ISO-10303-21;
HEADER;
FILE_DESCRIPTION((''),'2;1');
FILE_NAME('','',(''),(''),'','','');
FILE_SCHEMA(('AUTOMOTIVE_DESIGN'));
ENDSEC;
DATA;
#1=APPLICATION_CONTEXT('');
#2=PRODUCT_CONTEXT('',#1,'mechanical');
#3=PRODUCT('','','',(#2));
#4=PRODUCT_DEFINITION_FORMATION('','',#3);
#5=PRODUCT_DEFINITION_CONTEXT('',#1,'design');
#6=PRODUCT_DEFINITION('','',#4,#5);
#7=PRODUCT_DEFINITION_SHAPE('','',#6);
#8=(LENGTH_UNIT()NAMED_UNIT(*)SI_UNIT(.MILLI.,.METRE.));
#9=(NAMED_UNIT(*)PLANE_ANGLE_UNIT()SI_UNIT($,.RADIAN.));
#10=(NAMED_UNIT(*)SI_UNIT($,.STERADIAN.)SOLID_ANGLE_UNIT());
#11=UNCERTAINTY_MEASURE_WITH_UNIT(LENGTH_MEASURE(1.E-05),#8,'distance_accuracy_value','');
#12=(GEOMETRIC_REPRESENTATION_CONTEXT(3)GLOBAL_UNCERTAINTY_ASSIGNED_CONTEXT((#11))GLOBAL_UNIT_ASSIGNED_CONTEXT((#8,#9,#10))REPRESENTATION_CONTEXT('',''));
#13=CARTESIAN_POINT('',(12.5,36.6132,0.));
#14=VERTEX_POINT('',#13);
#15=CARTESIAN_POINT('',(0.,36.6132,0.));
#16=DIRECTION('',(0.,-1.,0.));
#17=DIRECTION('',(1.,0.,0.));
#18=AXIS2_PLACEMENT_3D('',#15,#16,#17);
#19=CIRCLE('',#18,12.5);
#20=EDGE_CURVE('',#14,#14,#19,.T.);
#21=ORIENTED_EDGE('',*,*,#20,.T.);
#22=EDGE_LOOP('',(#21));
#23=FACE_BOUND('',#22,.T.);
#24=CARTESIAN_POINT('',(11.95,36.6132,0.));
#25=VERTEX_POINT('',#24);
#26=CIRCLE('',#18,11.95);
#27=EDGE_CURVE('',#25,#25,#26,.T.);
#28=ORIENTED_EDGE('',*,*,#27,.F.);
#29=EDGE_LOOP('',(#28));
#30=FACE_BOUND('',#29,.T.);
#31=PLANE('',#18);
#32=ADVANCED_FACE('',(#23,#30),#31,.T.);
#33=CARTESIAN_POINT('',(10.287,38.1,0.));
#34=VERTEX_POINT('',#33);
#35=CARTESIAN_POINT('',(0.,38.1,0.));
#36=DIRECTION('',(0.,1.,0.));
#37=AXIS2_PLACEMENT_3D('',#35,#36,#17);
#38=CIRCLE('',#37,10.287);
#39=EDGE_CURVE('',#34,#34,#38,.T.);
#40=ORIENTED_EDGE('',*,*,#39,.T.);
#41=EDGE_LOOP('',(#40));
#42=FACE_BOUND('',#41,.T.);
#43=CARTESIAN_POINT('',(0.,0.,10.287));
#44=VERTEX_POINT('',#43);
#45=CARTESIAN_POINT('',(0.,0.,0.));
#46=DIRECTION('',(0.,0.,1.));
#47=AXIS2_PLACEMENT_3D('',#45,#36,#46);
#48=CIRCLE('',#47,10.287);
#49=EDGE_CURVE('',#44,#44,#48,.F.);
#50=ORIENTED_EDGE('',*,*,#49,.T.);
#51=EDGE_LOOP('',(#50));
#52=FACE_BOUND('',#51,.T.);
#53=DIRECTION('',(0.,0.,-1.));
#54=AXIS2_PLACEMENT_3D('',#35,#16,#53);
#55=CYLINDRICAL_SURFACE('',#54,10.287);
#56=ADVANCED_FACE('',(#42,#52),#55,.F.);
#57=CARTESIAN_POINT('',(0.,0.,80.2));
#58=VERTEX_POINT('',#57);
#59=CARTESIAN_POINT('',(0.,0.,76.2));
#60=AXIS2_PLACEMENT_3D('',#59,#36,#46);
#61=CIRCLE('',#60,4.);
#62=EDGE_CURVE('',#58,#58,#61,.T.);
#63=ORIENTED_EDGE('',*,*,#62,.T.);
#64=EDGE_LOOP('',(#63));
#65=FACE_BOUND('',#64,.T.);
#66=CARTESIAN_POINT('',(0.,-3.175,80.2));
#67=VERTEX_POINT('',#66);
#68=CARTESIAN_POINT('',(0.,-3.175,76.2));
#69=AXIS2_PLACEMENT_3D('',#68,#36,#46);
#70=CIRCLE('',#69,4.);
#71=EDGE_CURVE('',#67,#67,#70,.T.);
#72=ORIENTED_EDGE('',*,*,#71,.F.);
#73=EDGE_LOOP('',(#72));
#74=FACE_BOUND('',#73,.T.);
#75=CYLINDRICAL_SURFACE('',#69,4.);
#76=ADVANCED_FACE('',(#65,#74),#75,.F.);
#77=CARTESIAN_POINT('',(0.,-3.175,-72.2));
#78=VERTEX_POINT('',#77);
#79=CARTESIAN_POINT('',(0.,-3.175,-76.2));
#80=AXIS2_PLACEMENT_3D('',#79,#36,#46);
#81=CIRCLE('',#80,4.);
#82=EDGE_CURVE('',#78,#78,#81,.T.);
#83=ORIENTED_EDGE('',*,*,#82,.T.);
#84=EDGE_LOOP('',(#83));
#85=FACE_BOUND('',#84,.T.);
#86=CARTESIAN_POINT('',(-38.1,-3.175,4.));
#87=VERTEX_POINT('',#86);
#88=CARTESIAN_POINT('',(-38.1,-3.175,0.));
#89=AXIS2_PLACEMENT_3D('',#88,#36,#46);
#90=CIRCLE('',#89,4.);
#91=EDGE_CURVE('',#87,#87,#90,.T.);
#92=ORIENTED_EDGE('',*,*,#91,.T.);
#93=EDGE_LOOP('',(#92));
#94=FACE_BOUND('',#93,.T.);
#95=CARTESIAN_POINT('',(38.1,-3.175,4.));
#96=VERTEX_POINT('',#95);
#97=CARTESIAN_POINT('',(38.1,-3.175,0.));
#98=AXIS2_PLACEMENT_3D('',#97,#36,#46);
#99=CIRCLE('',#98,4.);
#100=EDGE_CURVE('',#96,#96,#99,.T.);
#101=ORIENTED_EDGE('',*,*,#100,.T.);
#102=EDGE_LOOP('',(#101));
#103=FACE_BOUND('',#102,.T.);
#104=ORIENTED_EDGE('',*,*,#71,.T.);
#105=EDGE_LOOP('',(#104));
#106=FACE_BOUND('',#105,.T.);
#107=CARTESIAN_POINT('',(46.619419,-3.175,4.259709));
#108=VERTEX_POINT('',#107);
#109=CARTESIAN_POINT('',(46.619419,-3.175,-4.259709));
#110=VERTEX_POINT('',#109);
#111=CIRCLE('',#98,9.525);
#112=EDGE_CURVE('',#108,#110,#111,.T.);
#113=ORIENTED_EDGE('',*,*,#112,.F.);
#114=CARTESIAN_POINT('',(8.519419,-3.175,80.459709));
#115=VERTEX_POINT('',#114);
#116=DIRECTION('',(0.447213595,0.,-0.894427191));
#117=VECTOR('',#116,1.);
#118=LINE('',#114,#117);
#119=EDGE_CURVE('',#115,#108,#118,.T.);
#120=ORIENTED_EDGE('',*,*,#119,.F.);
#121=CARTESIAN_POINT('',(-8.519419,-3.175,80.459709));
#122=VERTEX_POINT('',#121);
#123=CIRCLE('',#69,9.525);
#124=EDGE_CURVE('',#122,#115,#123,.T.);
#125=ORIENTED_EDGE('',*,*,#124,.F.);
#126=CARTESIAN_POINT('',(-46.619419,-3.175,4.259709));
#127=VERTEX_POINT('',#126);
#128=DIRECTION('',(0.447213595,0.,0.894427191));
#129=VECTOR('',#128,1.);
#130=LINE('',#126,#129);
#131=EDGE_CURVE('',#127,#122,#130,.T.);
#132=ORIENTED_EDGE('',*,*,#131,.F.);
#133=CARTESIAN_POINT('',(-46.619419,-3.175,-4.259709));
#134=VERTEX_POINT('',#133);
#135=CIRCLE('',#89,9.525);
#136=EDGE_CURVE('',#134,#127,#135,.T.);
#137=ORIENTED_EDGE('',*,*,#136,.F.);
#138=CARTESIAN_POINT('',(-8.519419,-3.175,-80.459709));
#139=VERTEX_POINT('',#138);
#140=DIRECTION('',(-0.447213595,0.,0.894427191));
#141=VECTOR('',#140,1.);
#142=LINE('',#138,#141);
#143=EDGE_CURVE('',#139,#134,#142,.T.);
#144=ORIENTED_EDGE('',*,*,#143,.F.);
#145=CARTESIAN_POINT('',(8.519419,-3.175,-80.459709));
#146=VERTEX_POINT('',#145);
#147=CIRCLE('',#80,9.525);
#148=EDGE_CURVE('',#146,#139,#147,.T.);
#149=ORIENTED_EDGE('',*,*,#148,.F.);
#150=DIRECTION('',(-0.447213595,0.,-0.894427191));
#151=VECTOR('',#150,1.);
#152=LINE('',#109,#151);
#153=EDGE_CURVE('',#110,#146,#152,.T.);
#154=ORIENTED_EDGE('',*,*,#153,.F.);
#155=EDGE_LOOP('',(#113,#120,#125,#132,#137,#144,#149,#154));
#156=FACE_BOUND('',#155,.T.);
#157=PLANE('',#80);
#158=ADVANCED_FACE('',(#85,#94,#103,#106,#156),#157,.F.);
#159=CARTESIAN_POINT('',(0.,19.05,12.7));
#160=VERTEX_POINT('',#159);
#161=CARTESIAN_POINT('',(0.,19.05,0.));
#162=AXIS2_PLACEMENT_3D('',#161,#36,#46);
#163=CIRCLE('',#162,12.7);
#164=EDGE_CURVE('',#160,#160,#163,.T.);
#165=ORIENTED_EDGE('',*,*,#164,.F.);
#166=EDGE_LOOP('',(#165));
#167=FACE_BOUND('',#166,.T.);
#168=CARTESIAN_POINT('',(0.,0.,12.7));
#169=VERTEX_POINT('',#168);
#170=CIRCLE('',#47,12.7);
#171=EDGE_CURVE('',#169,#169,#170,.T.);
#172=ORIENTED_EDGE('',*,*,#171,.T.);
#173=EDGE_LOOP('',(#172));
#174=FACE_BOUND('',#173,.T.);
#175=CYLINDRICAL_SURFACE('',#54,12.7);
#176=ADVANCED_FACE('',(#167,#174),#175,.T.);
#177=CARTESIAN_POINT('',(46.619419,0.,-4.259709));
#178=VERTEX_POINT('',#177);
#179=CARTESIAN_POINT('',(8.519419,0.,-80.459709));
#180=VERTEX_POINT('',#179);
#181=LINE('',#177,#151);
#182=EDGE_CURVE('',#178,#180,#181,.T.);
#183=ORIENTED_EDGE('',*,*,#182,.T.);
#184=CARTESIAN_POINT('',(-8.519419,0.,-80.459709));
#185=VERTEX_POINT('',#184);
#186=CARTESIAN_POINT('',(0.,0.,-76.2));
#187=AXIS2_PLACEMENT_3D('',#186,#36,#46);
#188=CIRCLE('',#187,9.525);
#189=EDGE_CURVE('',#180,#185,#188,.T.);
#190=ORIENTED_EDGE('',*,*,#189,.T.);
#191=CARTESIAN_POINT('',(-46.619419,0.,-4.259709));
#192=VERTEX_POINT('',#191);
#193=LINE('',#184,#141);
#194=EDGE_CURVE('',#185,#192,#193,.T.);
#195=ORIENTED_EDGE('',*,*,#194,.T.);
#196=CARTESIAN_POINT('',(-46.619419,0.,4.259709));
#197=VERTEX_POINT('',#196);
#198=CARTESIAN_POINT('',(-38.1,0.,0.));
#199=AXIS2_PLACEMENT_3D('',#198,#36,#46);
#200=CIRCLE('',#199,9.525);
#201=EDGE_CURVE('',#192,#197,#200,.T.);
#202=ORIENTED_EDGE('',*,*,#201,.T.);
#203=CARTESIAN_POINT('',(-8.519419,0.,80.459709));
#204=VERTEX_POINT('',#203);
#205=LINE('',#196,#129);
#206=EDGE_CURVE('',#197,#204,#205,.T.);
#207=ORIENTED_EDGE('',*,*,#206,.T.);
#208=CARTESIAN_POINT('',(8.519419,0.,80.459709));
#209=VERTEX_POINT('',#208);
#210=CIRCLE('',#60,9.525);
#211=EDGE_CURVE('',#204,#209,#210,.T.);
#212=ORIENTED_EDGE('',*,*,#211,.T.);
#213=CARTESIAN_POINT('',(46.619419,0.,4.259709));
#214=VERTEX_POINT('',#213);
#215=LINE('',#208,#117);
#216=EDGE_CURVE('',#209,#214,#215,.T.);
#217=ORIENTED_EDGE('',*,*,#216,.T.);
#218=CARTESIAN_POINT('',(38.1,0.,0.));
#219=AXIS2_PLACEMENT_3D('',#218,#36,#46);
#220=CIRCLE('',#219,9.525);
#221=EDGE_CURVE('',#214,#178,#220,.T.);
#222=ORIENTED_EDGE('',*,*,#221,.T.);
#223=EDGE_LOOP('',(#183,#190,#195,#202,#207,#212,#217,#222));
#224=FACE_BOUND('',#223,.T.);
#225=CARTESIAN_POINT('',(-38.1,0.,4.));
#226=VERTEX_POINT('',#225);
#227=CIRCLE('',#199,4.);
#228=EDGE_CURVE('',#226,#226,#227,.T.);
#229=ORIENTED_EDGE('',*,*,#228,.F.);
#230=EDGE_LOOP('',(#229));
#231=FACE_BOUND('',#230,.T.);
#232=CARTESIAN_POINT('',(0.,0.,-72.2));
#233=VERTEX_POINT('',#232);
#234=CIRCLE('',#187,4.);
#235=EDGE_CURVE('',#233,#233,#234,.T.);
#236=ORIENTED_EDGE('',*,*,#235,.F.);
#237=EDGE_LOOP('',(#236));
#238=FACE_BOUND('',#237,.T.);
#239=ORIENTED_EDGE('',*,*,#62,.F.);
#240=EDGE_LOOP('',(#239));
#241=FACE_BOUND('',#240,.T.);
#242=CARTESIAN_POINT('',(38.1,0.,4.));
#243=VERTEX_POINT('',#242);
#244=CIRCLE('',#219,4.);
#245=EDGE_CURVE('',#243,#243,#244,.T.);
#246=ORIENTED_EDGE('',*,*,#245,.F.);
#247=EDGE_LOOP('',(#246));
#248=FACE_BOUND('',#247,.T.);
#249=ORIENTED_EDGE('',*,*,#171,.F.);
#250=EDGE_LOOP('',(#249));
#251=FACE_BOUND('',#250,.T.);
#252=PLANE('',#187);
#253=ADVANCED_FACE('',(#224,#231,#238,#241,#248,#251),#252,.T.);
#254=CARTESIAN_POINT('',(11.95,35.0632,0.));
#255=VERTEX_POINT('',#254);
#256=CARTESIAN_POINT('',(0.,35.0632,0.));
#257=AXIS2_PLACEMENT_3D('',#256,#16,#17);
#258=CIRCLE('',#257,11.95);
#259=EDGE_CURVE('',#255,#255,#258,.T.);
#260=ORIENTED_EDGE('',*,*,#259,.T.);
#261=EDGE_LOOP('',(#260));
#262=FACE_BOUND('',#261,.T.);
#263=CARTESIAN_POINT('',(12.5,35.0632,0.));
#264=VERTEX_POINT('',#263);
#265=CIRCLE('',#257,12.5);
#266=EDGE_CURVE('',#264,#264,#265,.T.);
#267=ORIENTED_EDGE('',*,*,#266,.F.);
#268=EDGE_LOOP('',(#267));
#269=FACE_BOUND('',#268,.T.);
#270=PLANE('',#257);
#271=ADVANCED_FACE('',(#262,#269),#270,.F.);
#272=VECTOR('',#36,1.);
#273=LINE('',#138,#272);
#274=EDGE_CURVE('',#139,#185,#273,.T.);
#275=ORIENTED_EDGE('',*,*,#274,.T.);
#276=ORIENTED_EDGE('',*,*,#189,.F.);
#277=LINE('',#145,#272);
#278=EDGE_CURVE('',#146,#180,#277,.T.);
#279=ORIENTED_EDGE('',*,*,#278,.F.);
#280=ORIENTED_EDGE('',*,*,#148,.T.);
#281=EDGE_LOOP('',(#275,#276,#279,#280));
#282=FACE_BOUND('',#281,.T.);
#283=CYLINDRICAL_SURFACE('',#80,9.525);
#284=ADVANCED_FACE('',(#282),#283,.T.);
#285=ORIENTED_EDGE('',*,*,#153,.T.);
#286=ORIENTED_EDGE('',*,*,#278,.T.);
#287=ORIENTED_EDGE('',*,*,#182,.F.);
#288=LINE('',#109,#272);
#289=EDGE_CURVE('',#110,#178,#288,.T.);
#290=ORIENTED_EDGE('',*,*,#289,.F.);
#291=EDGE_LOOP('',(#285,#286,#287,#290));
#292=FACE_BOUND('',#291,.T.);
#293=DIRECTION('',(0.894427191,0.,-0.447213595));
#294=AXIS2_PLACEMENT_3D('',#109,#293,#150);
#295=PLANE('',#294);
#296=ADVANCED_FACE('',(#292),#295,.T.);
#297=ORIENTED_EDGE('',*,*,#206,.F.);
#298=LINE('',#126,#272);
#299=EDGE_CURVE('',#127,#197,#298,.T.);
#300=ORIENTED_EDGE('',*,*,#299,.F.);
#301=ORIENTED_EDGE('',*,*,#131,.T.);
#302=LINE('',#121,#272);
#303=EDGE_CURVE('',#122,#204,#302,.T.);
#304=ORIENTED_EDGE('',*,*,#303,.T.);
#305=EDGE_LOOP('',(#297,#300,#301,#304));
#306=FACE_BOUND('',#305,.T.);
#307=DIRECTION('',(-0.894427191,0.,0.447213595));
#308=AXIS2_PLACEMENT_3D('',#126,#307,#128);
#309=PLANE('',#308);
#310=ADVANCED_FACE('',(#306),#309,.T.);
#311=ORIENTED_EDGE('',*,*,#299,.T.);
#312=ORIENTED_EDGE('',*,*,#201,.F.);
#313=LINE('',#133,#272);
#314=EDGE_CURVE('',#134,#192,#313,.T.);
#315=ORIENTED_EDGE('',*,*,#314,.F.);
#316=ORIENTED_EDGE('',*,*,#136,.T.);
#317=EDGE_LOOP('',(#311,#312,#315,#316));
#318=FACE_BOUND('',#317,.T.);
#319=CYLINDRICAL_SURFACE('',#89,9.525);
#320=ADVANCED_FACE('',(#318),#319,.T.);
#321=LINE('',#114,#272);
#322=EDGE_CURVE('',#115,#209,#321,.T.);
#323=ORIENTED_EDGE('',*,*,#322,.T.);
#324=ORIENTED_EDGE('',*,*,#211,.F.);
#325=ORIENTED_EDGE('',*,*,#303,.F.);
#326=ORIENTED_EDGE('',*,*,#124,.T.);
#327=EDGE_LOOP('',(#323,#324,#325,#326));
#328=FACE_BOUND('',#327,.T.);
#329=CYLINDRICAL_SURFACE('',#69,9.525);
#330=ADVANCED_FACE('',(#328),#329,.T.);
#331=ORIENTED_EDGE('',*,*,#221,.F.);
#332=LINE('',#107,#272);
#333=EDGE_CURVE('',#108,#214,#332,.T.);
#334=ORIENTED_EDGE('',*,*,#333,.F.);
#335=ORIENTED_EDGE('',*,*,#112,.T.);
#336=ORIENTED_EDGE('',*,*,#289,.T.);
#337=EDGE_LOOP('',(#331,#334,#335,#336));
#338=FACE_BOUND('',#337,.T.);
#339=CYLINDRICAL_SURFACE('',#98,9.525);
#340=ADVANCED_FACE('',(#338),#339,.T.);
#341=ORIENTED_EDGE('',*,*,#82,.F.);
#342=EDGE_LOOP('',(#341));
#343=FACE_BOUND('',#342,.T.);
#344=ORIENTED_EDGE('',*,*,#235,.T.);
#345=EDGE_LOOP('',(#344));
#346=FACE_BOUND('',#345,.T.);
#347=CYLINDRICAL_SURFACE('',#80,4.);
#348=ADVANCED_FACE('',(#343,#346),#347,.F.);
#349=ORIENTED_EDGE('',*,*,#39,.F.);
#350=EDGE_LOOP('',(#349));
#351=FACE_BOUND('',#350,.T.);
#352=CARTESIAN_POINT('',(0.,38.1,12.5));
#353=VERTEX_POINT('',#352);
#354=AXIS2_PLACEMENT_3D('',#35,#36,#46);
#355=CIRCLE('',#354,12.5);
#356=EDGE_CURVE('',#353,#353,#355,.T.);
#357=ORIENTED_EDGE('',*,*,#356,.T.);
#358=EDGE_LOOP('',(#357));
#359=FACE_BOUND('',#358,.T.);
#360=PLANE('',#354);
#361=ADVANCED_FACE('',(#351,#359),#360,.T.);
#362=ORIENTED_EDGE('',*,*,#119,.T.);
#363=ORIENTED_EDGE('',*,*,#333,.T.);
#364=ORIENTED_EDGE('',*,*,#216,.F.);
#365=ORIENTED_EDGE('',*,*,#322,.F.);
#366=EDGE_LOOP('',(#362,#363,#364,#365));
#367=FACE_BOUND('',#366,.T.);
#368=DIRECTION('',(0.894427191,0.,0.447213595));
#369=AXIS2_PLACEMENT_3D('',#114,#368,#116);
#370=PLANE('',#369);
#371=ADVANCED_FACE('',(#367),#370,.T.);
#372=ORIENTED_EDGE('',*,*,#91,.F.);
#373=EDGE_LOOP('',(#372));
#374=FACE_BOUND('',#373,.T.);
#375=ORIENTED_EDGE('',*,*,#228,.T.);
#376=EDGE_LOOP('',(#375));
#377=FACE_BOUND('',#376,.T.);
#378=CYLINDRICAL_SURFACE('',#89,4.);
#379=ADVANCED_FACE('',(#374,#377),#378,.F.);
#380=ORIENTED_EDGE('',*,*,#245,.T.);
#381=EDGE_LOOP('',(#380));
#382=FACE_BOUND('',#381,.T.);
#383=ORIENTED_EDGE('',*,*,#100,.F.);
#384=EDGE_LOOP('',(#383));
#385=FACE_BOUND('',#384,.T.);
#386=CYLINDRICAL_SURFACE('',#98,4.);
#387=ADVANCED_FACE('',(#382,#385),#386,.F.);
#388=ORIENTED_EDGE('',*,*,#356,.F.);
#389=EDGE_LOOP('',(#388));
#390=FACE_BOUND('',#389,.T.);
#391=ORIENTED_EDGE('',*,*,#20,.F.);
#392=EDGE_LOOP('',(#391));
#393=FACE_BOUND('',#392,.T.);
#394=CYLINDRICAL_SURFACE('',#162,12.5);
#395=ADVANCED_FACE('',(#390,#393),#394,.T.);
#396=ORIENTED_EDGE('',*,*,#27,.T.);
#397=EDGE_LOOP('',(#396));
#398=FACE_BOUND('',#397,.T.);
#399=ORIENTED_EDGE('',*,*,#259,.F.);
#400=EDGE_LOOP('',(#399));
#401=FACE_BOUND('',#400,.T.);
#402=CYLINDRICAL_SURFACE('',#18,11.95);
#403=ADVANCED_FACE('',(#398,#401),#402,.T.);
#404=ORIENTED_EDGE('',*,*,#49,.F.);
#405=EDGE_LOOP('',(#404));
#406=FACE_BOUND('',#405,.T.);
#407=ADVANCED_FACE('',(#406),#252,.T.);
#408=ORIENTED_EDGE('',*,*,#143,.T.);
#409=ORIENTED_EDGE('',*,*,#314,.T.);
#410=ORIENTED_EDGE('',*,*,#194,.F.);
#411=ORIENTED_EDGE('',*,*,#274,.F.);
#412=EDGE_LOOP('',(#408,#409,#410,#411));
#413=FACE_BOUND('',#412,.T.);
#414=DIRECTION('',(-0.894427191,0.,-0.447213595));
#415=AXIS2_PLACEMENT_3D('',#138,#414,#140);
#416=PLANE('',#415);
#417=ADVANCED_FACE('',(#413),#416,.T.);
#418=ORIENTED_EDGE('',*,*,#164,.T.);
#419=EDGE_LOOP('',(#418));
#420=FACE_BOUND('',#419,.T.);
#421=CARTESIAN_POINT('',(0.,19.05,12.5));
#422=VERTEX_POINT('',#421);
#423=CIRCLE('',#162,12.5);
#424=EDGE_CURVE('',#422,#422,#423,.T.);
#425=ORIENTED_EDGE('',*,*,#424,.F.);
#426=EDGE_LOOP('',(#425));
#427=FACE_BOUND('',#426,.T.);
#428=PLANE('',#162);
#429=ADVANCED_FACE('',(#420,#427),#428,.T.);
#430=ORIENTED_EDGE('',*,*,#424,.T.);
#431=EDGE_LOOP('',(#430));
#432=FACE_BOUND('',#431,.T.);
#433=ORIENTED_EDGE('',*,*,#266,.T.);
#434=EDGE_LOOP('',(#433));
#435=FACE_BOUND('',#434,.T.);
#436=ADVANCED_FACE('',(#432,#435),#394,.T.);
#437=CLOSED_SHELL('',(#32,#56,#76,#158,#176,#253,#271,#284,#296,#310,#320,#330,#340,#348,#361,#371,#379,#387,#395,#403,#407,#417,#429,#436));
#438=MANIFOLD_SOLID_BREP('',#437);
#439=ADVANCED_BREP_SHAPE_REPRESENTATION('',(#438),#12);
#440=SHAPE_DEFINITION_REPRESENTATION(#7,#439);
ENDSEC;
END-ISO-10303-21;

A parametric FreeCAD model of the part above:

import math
import FreeCAD as App
import Part
import Sketcher

V = App.Vector
Q = App.Units.Quantity

doc = App.newDocument("Part")
params = doc.addObject("Spreadsheet::Sheet", "Params")
for row, (alias, value) in enumerate([
    ("sketch1_radius", "0.375 in"),
    ("pad1_length", "0.125 in"),
    ("sketch2_diameter", "1 in"),
    ("sketch2_diameter2", "0.81 in"),
    ("pad2_length", "1.5 in"),
    ("sketch3_diameter", "1 in"),
    ("pocket1_length", "0.75 in"),
    ("pocket2_length", "1.55 mm"),
], start=1):
    params.set(f"A{row}", alias)
    params.set(f"B{row}", "=" + value)
    params.setAlias(f"B{row}", alias)

body = doc.addObject("PartDesign::Body", "Body")

# Sketch on XZ plane
sketch1 = body.newObject("Sketcher::SketchObject", "Sketch")
sketch1.AttachmentSupport = (doc.getObject("XZ_Plane"), [""])
sketch1.MapMode = "FlatFace"
sketch1.addGeometry(Part.LineSegment(V(-8.5, -80.5, 0), V(-46.6, -4.3, 0)), False)
sketch1.addGeometry(Part.ArcOfCircle(Part.Circle(V(-38.1, 0, 0), V(0, 0, 1), 9.5), math.radians(153), math.radians(207)), False)
sketch1.addGeometry(Part.LineSegment(V(-46.6, 4.3, 0), V(-8.5, 80.5, 0)), False)
sketch1.addGeometry(Part.ArcOfCircle(Part.Circle(V(0, 76.2, 0), V(0, 0, 1), 9.5), math.radians(27), math.radians(153)), False)
sketch1.addGeometry(Part.LineSegment(V(8.5, 80.5, 0), V(46.6, 4.3, 0)), False)
sketch1.addGeometry(Part.ArcOfCircle(Part.Circle(V(38.1, 0, 0), V(0, 0, 1), 9.5), math.radians(-27), math.radians(27)), False)
sketch1.addGeometry(Part.LineSegment(V(46.6, -4.3, 0), V(8.5, -80.5, 0)), False)
sketch1.addGeometry(Part.ArcOfCircle(Part.Circle(V(0, -76.2, 0), V(0, 0, 1), 9.5), math.radians(-153), math.radians(-27)), False)
sketch1.addGeometry(Part.Circle(V(-38.1, 0, 0), V(0, 0, 1), 4), False)
sketch1.addGeometry(Part.Circle(V(0, 76.2, 0), V(0, 0, 1), 4), False)
sketch1.addGeometry(Part.Circle(V(38.1, 0, 0), V(0, 0, 1), 4), False)
sketch1.addGeometry(Part.Circle(V(0, -76.2, 0), V(0, 0, 1), 4), False)
sketch1.addConstraint(Sketcher.Constraint("Tangent", 0, 2, 1, 2))
sketch1.addConstraint(Sketcher.Constraint("Tangent", 1, 1, 2, 1))
sketch1.addConstraint(Sketcher.Constraint("Tangent", 2, 2, 3, 2))
sketch1.addConstraint(Sketcher.Constraint("Tangent", 3, 1, 4, 1))
sketch1.addConstraint(Sketcher.Constraint("Tangent", 4, 2, 5, 2))
sketch1.addConstraint(Sketcher.Constraint("Tangent", 5, 1, 6, 1))
sketch1.addConstraint(Sketcher.Constraint("Tangent", 6, 2, 7, 2))
sketch1.addConstraint(Sketcher.Constraint("Tangent", 7, 1, 0, 1))
sketch1.addConstraint(Sketcher.Constraint("Coincident", 8, 3, 1, 3))
sketch1.addConstraint(Sketcher.Constraint("Coincident", 9, 3, 3, 3))
sketch1.addConstraint(Sketcher.Constraint("Coincident", 10, 3, 5, 3))
sketch1.addConstraint(Sketcher.Constraint("Coincident", 11, 3, 7, 3))
sketch1.addConstraint(Sketcher.Constraint("Equal", 1, 3))
sketch1.addConstraint(Sketcher.Constraint("Equal", 3, 5))
sketch1.addConstraint(Sketcher.Constraint("Equal", 5, 7))
sketch1.addConstraint(Sketcher.Constraint("Equal", 8, 9))
sketch1.addConstraint(Sketcher.Constraint("Equal", 9, 10))
sketch1.addConstraint(Sketcher.Constraint("Equal", 10, 11))
sketch1.addConstraint(Sketcher.Constraint("Symmetric", 1, 3, 5, 3, -1, 1))
sketch1.addConstraint(Sketcher.Constraint("Symmetric", 3, 3, 7, 3, -1, 1))
sketch1.addConstraint(Sketcher.Constraint("Symmetric", 2, 2, 3, 1, -2))
sketch1.addConstraint(Sketcher.Constraint("DistanceY", -1, 1, 3, 3, Q("3 in")))
sketch1.addConstraint(Sketcher.Constraint("Radius", 1, Q("0.375 in")))
sketch1.addConstraint(Sketcher.Constraint("DistanceX", 1, 3, 5, 3, Q("3 in")))
sketch1.addConstraint(Sketcher.Constraint("Diameter", 8, Q("8 mm")))
sketch1.setExpression("Constraints[22]", "Params.sketch1_radius")
pad1 = body.newObject("PartDesign::Pad", "Pad")
pad1.Profile = sketch1
pad1.setExpression("Length", "Params.pad1_length")

# Sketch on XZ plane
sketch2 = body.newObject("Sketcher::SketchObject", "Sketch001")
sketch2.AttachmentSupport = (doc.getObject("XZ_Plane"), [""])
sketch2.MapMode = "FlatFace"
sketch2.addGeometry(Part.Circle(V(0, 0, 0), V(0, 0, 1), 13), False)
sketch2.addGeometry(Part.Circle(V(0, 0, 0), V(0, 0, 1), 10), False)
sketch2.addConstraint(Sketcher.Constraint("Coincident", 0, 3, -1, 1))
sketch2.addConstraint(Sketcher.Constraint("Coincident", 1, 3, -1, 1))
sketch2.addConstraint(Sketcher.Constraint("Diameter", 0, Q("1 in")))
sketch2.addConstraint(Sketcher.Constraint("Diameter", 1, Q("0.81 in")))
sketch2.setExpression("Constraints[2]", "Params.sketch2_diameter")
sketch2.setExpression("Constraints[3]", "Params.sketch2_diameter2")
pad2 = body.newObject("PartDesign::Pad", "Pad001")
pad2.Profile = sketch2
pad2.setExpression("Length", "Params.pad2_length")
pad2.Reversed = True

# Sketch on XZ plane
sketch3 = body.newObject("Sketcher::SketchObject", "Sketch002")
sketch3.AttachmentSupport = (doc.getObject("XZ_Plane"), [""])
sketch3.MapMode = "FlatFace"
sketch3.AttachmentOffset = App.Placement(V(0, 0, -1.5 * 25.4), App.Rotation())
sketch3.addGeometry(Part.Circle(V(0, 0, 0), V(0, 0, 1), 13), False)
sketch3.addGeometry(Part.Circle(V(0, 0, 0), V(0, 0, 1), 12), False)
sketch3.addConstraint(Sketcher.Constraint("Coincident", 0, 3, -1, 1))
sketch3.addConstraint(Sketcher.Constraint("Coincident", 1, 3, -1, 1))
sketch3.addConstraint(Sketcher.Constraint("Diameter", 0, Q("1 in")))
sketch3.addConstraint(Sketcher.Constraint("Diameter", 1, Q("25 mm")))
sketch3.setExpression("Constraints[2]", "Params.sketch3_diameter")
pocket1 = body.newObject("PartDesign::Pocket", "Pocket")
pocket1.Profile = sketch3
pocket1.setExpression("Length", "Params.pocket1_length")
pocket1.Reversed = True

# Sketch on XZ plane
sketch4 = body.newObject("Sketcher::SketchObject", "Sketch003")
sketch4.AttachmentSupport = (doc.getObject("XZ_Plane"), [""])
sketch4.MapMode = "FlatFace"
sketch4.AttachmentOffset = App.Placement(V(0, 0, -35.0632), App.Rotation())
sketch4.addGeometry(Part.Circle(V(0, 0, 0), V(0, 0, 1), 12), False)
sketch4.addGeometry(Part.Circle(V(0, 0, 0), V(0, 0, 1), 12), False)
sketch4.addConstraint(Sketcher.Constraint("Coincident", 0, 3, -1, 1))
sketch4.addConstraint(Sketcher.Constraint("Coincident", 1, 3, -1, 1))
sketch4.addConstraint(Sketcher.Constraint("Diameter", 0, Q("25 mm")))
sketch4.addConstraint(Sketcher.Constraint("Diameter", 1, Q("23.9 mm")))
pocket2 = body.newObject("PartDesign::Pocket", "Pocket001")
pocket2.Profile = sketch4
pocket2.setExpression("Length", "Params.pocket2_length")

doc.recompute()
